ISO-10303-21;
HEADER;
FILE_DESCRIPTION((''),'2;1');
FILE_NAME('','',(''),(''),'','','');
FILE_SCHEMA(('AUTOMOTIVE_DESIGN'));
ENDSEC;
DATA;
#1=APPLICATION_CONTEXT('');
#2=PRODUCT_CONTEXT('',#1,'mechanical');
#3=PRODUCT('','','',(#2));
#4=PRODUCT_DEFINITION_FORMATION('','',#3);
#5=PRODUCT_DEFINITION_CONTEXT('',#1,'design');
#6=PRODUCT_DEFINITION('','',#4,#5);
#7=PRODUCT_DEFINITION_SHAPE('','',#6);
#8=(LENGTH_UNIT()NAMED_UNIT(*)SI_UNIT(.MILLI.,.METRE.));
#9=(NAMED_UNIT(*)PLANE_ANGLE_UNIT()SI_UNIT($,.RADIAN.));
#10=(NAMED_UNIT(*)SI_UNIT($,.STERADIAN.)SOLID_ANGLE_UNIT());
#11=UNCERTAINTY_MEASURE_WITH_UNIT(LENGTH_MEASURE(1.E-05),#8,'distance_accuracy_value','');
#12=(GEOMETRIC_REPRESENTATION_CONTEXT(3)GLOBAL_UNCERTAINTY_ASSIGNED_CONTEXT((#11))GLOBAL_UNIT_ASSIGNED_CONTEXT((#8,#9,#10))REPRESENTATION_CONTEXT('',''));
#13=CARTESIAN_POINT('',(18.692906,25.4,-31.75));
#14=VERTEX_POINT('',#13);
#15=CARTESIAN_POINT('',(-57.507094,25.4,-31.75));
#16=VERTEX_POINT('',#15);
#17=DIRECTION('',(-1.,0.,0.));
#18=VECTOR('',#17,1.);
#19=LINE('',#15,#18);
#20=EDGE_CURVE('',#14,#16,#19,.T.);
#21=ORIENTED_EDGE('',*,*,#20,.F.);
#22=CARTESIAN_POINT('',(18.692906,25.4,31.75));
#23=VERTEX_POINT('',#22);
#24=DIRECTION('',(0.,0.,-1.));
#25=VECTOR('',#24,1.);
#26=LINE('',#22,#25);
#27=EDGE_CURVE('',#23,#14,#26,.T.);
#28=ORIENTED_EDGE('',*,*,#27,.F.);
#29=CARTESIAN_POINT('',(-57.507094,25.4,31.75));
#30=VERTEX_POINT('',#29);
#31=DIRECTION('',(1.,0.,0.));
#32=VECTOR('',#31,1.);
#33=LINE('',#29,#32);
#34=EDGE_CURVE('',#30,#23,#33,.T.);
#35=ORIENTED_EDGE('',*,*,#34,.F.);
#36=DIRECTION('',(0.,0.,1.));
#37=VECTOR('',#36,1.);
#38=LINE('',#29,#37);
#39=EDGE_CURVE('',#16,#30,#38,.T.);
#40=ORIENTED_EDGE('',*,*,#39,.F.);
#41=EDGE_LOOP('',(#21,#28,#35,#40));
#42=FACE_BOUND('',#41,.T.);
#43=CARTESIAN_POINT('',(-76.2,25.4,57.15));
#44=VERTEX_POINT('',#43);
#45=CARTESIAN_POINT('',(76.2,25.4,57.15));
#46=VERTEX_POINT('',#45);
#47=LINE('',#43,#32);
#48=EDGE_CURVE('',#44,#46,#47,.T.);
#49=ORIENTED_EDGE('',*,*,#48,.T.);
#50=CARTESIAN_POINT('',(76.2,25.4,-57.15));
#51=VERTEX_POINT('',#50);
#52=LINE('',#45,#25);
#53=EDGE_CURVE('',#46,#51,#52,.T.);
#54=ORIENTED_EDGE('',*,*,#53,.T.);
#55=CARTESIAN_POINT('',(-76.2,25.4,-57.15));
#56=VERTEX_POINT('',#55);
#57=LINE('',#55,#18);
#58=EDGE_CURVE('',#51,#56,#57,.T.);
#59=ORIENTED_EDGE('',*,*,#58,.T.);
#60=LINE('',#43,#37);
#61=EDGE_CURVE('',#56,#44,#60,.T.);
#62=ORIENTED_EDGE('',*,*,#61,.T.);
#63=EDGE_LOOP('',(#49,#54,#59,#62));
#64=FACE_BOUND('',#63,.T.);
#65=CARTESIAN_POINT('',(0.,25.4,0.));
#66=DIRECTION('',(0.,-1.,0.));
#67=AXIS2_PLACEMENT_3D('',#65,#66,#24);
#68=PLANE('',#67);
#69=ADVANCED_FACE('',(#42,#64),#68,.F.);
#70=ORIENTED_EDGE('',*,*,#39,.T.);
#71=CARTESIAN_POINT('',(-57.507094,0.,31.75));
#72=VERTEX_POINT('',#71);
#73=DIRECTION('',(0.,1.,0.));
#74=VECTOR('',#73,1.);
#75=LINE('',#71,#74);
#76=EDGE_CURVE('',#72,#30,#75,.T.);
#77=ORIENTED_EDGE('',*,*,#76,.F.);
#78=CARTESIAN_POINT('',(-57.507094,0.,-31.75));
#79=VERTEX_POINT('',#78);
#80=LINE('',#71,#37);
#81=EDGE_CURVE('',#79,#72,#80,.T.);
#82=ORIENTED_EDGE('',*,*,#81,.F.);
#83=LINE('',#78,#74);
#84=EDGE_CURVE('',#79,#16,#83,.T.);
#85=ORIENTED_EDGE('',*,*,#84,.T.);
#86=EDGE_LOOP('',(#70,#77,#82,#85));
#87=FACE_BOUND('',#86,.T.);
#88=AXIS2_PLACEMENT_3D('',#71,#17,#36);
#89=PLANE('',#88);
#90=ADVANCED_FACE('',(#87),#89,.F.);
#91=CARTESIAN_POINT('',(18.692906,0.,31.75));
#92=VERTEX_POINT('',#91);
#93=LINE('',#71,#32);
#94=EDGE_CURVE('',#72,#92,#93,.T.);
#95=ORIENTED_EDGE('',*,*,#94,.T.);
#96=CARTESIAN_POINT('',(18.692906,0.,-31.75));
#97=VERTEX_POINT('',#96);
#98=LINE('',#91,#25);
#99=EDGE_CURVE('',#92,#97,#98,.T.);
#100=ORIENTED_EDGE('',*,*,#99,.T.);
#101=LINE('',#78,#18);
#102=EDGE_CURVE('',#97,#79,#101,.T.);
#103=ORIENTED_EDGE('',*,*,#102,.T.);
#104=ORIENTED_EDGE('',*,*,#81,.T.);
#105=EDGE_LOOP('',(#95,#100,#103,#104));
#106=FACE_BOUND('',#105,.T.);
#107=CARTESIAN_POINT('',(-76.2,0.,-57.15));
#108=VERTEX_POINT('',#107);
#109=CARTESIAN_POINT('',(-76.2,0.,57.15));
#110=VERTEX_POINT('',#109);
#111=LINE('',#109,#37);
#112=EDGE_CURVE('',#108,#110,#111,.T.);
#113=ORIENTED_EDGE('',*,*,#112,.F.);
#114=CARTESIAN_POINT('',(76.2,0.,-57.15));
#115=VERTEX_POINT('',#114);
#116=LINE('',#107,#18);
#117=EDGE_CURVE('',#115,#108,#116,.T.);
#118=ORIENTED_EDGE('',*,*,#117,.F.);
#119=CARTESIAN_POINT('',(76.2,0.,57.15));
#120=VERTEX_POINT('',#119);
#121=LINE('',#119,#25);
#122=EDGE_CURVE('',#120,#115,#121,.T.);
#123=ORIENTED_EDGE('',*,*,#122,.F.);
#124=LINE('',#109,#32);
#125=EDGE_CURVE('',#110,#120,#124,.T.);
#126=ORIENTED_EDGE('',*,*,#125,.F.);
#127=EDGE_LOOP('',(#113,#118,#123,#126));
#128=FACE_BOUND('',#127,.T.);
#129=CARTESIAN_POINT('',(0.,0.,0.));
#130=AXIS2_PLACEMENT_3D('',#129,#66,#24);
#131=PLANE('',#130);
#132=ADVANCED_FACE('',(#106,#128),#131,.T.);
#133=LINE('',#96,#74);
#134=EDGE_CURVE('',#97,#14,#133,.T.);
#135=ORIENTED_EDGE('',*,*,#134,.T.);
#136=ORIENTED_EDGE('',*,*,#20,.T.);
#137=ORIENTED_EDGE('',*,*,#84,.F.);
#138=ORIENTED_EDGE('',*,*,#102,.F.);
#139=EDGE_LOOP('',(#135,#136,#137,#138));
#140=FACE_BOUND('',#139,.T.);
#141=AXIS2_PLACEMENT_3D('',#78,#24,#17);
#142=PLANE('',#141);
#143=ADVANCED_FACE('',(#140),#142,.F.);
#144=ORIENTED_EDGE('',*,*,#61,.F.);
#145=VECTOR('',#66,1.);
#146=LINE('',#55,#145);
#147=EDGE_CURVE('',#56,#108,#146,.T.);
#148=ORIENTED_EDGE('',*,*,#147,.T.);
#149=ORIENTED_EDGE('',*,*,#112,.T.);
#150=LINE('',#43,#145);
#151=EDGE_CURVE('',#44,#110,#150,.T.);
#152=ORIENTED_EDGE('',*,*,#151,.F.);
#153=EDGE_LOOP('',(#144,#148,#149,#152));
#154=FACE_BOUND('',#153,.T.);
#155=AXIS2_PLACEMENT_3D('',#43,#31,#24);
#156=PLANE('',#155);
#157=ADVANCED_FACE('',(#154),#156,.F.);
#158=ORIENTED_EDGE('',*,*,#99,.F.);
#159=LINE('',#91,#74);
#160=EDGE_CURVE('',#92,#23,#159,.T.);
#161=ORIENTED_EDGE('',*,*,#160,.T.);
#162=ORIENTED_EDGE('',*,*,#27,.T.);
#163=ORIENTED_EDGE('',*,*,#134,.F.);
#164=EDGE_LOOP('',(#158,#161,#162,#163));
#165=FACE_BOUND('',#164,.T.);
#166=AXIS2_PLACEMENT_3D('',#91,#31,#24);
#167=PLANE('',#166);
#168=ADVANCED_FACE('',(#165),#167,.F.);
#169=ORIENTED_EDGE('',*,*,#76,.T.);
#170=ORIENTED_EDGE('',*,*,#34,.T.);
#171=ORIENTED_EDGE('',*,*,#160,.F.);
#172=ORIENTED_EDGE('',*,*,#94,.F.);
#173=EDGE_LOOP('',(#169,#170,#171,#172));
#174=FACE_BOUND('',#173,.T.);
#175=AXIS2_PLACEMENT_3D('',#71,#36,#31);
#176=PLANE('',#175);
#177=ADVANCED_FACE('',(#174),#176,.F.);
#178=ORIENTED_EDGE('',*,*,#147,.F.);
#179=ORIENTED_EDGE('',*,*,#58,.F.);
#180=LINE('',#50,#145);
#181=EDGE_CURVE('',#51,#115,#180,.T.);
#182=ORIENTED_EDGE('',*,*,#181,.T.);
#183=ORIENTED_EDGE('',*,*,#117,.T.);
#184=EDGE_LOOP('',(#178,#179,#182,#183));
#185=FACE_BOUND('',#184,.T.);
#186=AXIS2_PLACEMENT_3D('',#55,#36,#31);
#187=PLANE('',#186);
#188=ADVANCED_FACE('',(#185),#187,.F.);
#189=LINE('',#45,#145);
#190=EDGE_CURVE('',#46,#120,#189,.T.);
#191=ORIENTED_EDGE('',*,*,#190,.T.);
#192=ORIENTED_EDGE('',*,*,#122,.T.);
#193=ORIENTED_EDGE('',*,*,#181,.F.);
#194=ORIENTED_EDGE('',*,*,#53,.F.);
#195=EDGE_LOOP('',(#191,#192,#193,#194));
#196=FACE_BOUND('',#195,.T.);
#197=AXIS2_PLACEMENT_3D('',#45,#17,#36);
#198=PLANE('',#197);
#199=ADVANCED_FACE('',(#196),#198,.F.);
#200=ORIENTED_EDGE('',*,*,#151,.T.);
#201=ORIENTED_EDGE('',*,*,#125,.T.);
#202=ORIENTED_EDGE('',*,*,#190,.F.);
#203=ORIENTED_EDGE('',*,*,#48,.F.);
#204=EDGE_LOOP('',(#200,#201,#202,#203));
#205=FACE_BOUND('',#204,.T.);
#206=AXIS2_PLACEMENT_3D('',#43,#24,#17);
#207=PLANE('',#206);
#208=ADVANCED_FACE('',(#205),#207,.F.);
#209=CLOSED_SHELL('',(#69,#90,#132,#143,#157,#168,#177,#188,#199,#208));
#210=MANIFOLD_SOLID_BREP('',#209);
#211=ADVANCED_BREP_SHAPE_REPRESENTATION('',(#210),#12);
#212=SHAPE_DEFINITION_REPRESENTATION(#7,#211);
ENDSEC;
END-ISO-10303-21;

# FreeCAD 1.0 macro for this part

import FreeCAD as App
import Part
import Sketcher

V = App.Vector
Q = App.Units.Quantity


def add_polygon(sketch, points):
    """Adds a closed chain of lines whose ends are joined by coincident constraints."""
    first, n = sketch.GeometryCount, len(points)
    for a, b in zip(points, points[1:] + points[:1]):
        sketch.addGeometry(Part.LineSegment(App.Vector(*a, 0), App.Vector(*b, 0)), False)
    for i in range(n):
        sketch.addConstraint(Sketcher.Constraint("Coincident", first + i, 2, first + (i + 1) % n, 1))

doc = App.newDocument("Part")
body = doc.addObject("PartDesign::Body", "Body")

# Sketch on XZ plane
sketch1 = body.newObject("Sketcher::SketchObject", "Sketch")
sketch1.AttachmentSupport = (doc.getObject("XZ_Plane"), [""])
sketch1.MapMode = "FlatFace"
add_polygon(sketch1, [(-76.2, -57.15), (-76.2, 57.15), (76.2, 57.15), (76.2, -57.15)])  # lines 0-3
sketch1.addConstraint([
    Sketcher.Constraint("Vertical", 0),
    Sketcher.Constraint("Horizontal", 1),
    Sketcher.Constraint("Vertical", 2),
    Sketcher.Constraint("Horizontal", 3),
    Sketcher.Constraint("Symmetric", 0, 2, 2, 2, -1, 1),
    Sketcher.Constraint("DistanceX", 1, 1, 1, 2, Q("6 in")),
    Sketcher.Constraint("DistanceY", 0, 1, 0, 2, Q("4.5 in")),
])
pad1 = body.newObject("PartDesign::Pad", "Pad")
pad1.Profile = sketch1
pad1.Length = Q("1 in")
pad1.Reversed = True

# Sketch on XZ plane
sketch2 = body.newObject("Sketcher::SketchObject", "Sketch001")
sketch2.AttachmentSupport = (doc.getObject("XZ_Plane"), [""])
sketch2.MapMode = "FlatFace"
sketch2.AttachmentOffset = App.Placement(V(0, 0, -1 * 25.4), App.Rotation())
add_polygon(sketch2, [(-57.507094, -31.75), (-57.507094, 31.75), (18.692906, 31.75), (18.692906, -31.75)])  # lines 0-3
sketch2.addConstraint([
    Sketcher.Constraint("Vertical", 0),
    Sketcher.Constraint("Horizontal", 1),
    Sketcher.Constraint("Vertical", 2),
    Sketcher.Constraint("Horizontal", 3),
    Sketcher.Constraint("DistanceX", 1, 1, 1, 2, Q("3 in")),
    Sketcher.Constraint("DistanceY", 0, 1, 0, 2, Q("2.5 in")),
    Sketcher.Constraint("DistanceY", -1, 1, 0, 2, Q("1.25 in")),
    Sketcher.Constraint("DistanceX", 0, 2, -1, 1, Q("57.507094 mm")),
])
pocket1 = body.newObject("PartDesign::Pocket", "Pocket")
pocket1.Profile = sketch2
pocket1.Type = "ThroughAll"
pocket1.Reversed = True

doc.recompute()
